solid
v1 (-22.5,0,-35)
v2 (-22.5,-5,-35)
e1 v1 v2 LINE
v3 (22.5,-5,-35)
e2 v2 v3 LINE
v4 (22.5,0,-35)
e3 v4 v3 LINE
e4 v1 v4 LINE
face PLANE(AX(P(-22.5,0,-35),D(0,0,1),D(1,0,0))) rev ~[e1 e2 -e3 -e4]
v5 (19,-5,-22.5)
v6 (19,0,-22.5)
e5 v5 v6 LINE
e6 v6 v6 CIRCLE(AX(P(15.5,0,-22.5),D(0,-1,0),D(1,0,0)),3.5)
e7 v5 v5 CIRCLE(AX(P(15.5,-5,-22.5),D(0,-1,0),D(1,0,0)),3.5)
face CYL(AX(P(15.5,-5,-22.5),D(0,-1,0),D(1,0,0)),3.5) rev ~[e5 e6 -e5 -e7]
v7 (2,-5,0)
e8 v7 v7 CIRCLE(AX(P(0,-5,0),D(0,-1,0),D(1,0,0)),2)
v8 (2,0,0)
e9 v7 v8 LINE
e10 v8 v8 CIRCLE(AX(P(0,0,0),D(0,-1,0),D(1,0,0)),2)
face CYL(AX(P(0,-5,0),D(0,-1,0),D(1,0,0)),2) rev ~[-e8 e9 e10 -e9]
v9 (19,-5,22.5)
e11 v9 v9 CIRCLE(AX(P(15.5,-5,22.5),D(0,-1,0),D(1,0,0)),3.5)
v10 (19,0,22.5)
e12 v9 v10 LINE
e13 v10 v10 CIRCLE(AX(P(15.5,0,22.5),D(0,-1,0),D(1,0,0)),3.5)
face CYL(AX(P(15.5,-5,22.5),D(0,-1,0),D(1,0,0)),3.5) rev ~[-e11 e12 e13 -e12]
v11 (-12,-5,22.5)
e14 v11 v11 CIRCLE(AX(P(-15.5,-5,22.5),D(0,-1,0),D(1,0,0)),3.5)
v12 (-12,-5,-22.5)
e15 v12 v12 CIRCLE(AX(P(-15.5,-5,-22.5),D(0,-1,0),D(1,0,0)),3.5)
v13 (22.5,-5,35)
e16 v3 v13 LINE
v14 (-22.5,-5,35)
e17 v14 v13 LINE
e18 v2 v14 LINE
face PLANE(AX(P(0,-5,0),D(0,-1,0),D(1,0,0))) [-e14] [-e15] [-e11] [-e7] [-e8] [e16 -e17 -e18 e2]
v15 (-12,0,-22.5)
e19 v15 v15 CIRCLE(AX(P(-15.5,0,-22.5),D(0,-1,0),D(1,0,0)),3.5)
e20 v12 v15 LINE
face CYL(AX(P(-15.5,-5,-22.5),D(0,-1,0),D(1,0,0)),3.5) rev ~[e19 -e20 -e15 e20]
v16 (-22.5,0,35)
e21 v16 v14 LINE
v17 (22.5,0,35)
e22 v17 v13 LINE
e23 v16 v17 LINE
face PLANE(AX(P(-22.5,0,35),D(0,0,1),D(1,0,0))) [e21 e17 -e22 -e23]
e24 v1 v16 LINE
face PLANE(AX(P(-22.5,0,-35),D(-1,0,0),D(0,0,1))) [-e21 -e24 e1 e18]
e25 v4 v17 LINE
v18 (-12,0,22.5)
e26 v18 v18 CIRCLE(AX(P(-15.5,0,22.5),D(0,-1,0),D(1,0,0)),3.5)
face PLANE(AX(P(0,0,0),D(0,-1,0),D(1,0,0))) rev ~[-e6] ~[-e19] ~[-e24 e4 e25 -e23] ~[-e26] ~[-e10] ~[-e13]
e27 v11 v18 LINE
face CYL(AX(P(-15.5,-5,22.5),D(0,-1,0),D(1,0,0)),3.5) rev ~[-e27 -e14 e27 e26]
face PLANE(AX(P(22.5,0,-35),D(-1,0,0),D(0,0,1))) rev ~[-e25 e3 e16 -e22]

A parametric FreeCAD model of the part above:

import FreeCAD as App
import Part
import Sketcher

V = App.Vector
Q = App.Units.Quantity


def add_polygon(sketch, points):
    """Adds a closed chain of lines whose ends are joined by coincident constraints."""
    first, n = sketch.GeometryCount, len(points)
    for a, b in zip(points, points[1:] + points[:1]):
        sketch.addGeometry(Part.LineSegment(App.Vector(*a, 0), App.Vector(*b, 0)), False)
    for i in range(n):
        sketch.addConstraint(Sketcher.Constraint("Coincident", first + i, 2, first + (i + 1) % n, 1))

doc = App.newDocument("Part")
body = doc.addObject("PartDesign::Body", "Body")

# Sketch on XZ plane
sketch1 = body.newObject("Sketcher::SketchObject", "Sketch")
sketch1.AttachmentSupport = (doc.getObject("XZ_Plane"), [""])
sketch1.MapMode = "FlatFace"
add_polygon(sketch1, [(-22, 35), (-22, -35), (22, -35), (22, 35)])  # lines 0-3
sketch1.addConstraint(Sketcher.Constraint("Vertical", 0))
sketch1.addConstraint(Sketcher.Constraint("Horizontal", 1))
sketch1.addConstraint(Sketcher.Constraint("Vertical", 2))
sketch1.addConstraint(Sketcher.Constraint("Horizontal", 3))
sketch1.addConstraint(Sketcher.Constraint("Symmetric", 0, 2, 2, 2, -1, 1))
sketch1.addConstraint(Sketcher.Constraint("DistanceX", 1, 1, 1, 2, Q("45 mm")))
sketch1.addConstraint(Sketcher.Constraint("DistanceY", 0, 2, 0, 1, Q("70 mm")))
pad1 = body.newObject("PartDesign::Pad", "Pad")
pad1.Profile = sketch1
pad1.Length = 5

# Sketch on XZ plane
sketch2 = body.newObject("Sketcher::SketchObject", "Sketch001")
sketch2.AttachmentSupport = (doc.getObject("XZ_Plane"), [""])
sketch2.MapMode = "FlatFace"
sketch2.AttachmentOffset = App.Placement(V(0, 0, 5), App.Rotation())
sketch2.addGeometry(Part.Circle(V(-15.5, 22.5, 0), V(0, 0, 1), 3.5), False)
sketch2.addGeometry(Part.Circle(V(15.5, 22.5, 0), V(0, 0, 1), 3.5), False)
sketch2.addGeometry(Part.Circle(V(-15.5, -22.5, 0), V(0, 0, 1), 3.5), False)
sketch2.addGeometry(Part.Circle(V(15.5, -22.5, 0), V(0, 0, 1), 3.5), False)
sketch2.addGeometry(Part.Circle(V(0, 0, 0), V(0, 0, 1), 2), False)
sketch2.addConstraint(Sketcher.Constraint("Coincident", 4, 3, -1, 1))
sketch2.addConstraint(Sketcher.Constraint("Equal", 0, 1))
sketch2.addConstraint(Sketcher.Constraint("Equal", 1, 2))
sketch2.addConstraint(Sketcher.Constraint("Equal", 2, 3))
sketch2.addConstraint(Sketcher.Constraint("Symmetric", 1, 3, 2, 3, -1, 1))
sketch2.addConstraint(Sketcher.Constraint("Symmetric", 0, 3, 3, 3, -1, 1))
sketch2.addConstraint(Sketcher.Constraint("Symmetric", 0, 3, 1, 3, -2))
sketch2.addConstraint(Sketcher.Constraint("Diameter", 0, Q("7 mm")))
sketch2.addConstraint(Sketcher.Constraint("Diameter", 4, Q("4 mm")))
sketch2.addConstraint(Sketcher.Constraint("DistanceX", 0, 3, 1, 3, Q("31 mm")))
sketch2.addConstraint(Sketcher.Constraint("DistanceY", 2, 3, 0, 3, Q("45 mm")))
pocket1 = body.newObject("PartDesign::Pocket", "Pocket")
pocket1.Profile = sketch2
pocket1.Type = "ThroughAll"

doc.recompute()
